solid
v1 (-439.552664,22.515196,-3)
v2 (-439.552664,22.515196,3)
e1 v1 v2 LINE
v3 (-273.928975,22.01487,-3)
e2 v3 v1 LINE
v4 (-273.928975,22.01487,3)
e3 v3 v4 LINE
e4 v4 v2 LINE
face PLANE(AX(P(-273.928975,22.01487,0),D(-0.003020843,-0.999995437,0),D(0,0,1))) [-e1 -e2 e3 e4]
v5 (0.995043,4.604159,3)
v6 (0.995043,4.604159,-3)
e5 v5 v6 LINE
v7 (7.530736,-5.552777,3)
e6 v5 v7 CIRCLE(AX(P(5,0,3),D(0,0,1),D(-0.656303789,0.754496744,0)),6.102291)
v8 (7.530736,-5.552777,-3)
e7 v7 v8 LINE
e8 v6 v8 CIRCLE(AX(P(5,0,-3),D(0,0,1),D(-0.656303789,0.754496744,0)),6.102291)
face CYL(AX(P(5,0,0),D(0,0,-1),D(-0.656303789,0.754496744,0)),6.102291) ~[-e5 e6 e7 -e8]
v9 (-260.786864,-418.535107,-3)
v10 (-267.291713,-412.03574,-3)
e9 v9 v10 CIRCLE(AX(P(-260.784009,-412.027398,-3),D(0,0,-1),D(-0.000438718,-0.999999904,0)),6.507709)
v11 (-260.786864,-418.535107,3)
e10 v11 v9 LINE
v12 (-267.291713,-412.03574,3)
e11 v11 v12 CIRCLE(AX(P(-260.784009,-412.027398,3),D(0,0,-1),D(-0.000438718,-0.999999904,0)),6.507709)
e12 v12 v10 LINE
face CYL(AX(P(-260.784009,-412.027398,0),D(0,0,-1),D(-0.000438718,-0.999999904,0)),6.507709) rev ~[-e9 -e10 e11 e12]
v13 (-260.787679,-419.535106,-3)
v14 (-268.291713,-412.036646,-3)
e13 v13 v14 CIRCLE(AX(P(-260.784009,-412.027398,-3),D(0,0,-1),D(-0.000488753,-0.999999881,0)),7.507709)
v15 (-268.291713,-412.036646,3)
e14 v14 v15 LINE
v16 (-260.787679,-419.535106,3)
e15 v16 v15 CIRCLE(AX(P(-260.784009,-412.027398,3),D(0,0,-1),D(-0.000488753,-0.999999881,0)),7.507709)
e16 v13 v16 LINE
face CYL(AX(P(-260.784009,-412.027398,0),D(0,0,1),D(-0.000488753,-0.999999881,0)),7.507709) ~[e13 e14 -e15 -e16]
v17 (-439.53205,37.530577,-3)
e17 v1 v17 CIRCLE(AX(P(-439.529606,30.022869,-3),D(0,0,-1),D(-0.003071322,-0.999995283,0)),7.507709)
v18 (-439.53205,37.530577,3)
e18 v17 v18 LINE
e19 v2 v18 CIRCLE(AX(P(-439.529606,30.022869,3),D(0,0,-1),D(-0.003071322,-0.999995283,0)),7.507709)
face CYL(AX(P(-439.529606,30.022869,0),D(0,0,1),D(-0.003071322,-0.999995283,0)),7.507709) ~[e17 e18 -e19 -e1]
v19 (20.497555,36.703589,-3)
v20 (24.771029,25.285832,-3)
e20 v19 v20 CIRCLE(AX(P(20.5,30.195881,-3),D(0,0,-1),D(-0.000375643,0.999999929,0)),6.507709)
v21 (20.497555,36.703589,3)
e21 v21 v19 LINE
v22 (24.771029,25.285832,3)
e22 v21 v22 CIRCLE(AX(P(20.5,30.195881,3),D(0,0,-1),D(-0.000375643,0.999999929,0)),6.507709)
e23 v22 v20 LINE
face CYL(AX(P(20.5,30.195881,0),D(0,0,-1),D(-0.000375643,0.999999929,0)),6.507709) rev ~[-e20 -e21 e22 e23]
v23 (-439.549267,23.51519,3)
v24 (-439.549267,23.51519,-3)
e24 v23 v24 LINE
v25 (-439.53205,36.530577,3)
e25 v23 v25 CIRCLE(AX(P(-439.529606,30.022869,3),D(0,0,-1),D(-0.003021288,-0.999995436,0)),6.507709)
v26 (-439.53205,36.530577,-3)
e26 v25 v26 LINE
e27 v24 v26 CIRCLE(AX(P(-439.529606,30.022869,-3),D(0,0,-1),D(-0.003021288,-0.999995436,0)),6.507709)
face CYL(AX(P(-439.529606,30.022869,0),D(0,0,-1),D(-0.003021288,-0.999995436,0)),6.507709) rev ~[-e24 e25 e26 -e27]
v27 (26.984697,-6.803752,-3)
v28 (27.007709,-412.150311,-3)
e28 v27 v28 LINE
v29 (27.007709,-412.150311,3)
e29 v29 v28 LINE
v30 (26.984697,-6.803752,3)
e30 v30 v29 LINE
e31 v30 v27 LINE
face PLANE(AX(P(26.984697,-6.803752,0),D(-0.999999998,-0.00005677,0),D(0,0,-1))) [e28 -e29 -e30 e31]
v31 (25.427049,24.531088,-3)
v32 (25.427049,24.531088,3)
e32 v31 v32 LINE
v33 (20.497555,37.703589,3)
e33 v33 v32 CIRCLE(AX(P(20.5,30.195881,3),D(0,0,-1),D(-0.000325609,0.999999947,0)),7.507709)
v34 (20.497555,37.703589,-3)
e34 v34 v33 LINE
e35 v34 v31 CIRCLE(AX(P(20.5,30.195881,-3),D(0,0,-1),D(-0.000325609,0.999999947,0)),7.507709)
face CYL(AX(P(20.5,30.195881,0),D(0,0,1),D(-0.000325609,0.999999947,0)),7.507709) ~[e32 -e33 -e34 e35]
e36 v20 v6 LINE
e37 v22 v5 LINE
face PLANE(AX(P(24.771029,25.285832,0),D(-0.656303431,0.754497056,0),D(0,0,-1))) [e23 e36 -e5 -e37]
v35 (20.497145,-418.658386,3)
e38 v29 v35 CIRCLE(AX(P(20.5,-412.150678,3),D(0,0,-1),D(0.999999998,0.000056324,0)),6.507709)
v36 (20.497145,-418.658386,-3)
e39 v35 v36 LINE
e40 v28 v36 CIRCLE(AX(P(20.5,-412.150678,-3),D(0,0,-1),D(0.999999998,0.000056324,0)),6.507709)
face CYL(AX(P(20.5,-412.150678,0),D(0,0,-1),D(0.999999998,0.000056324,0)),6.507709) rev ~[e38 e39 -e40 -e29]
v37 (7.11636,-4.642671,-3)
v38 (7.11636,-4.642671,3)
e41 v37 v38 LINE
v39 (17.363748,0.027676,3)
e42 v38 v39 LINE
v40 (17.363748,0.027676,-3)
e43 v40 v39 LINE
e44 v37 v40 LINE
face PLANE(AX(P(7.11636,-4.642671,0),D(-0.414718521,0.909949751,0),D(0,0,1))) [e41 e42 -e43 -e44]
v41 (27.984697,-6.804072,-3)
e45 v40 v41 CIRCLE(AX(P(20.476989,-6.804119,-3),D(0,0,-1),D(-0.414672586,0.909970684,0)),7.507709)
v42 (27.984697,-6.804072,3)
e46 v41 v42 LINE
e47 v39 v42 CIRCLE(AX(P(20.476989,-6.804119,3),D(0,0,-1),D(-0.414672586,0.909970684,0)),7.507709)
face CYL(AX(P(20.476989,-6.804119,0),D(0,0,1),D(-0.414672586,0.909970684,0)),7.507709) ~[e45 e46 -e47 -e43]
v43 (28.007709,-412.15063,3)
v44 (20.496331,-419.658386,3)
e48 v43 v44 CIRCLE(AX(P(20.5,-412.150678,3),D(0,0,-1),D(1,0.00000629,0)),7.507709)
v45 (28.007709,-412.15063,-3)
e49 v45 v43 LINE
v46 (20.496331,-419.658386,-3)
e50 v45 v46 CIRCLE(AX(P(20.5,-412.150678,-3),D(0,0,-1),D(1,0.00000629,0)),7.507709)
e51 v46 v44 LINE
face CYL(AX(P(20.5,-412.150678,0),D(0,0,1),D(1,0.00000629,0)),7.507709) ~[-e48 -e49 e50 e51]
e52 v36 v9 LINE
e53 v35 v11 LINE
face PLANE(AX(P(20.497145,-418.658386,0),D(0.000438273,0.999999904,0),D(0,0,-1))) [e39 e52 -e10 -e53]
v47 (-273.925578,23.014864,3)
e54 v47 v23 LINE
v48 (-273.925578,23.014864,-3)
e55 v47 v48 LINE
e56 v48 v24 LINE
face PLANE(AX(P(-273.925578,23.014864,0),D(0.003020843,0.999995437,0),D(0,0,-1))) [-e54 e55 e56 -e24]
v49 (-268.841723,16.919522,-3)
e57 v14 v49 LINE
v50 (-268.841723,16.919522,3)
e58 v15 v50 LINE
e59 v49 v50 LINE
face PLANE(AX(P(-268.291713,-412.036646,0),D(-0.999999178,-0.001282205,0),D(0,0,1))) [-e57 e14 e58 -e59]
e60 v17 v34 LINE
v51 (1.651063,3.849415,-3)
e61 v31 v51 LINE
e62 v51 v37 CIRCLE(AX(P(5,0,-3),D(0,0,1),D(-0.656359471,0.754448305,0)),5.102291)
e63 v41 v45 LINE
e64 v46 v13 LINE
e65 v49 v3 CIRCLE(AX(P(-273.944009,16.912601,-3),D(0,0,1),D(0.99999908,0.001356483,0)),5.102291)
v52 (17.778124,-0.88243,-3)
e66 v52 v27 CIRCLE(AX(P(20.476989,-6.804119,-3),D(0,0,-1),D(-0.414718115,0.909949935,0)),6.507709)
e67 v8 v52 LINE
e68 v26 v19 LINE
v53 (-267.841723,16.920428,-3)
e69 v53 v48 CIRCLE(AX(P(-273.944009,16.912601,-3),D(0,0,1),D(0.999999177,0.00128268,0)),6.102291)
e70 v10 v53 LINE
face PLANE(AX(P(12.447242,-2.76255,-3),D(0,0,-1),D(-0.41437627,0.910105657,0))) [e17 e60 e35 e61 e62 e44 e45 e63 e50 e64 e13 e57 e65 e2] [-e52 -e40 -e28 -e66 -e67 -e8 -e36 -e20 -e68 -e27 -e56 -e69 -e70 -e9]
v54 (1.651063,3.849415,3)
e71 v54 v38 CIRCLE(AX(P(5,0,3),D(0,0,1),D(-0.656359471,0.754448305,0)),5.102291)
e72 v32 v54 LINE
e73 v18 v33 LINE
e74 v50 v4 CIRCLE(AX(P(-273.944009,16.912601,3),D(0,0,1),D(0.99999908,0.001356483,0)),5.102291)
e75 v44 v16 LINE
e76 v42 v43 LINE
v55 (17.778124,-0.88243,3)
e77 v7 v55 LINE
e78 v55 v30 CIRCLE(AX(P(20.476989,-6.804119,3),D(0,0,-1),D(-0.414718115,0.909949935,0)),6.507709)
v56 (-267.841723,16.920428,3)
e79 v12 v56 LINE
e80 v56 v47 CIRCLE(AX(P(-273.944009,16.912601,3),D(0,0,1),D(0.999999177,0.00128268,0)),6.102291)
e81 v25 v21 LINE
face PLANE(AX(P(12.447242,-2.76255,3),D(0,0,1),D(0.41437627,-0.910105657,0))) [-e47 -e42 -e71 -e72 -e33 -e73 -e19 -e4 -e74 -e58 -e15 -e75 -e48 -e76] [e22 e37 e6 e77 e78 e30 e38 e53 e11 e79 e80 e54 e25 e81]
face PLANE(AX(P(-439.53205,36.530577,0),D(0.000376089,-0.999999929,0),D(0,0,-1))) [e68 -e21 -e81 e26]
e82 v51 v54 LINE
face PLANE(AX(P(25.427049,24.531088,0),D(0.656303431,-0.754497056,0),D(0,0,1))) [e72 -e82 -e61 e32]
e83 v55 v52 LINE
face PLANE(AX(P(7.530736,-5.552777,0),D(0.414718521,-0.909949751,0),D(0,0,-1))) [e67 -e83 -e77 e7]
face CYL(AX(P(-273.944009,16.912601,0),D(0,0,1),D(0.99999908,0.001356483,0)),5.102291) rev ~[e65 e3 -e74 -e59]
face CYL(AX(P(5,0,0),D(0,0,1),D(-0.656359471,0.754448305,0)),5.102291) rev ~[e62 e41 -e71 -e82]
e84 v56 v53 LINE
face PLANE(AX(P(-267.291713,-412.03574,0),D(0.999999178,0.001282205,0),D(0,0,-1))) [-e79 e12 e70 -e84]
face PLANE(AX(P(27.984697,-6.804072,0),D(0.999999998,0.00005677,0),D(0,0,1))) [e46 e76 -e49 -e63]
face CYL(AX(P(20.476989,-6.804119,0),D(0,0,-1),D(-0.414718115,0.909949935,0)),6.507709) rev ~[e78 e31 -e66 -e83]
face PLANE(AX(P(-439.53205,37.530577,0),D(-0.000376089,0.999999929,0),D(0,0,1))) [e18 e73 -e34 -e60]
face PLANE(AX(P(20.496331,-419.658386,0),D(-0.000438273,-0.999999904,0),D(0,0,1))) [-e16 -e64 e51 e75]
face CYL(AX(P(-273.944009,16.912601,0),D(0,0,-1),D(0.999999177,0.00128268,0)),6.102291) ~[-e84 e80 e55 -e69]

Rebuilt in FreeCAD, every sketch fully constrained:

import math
import FreeCAD as App
import Part
import Sketcher

V = App.Vector
Q = App.Units.Quantity

doc = App.newDocument("Part")
body = doc.addObject("PartDesign::Body", "Body")

# Sketch on YZ plane
sketch1 = body.newObject("Sketcher::SketchObject", "Sketch")
sketch1.AttachmentSupport = (doc.getObject("YZ_Plane"), [""])
sketch1.MapMode = "FlatFace"
sketch1.addGeometry([
    Part.LineSegment(V(37.7, 3, 0), V(36.7, 3, 0)),
    Part.LineSegment(V(36.7, 3, 0), V(36.7, -3, 0)),
    Part.LineSegment(V(36.7, -3, 0), V(37.7, -3, 0)),
    Part.LineSegment(V(37.7, -3, 0), V(37.7, 3, 0)),
], False)
sketch1.addConstraint([
    Sketcher.Constraint("Coincident", 0, 2, 1, 1),
    Sketcher.Constraint("Coincident", 1, 2, 2, 1),
    Sketcher.Constraint("Coincident", 2, 2, 3, 1),
    Sketcher.Constraint("Coincident", 3, 2, 0, 1),
    Sketcher.Constraint("Horizontal", 0),
    Sketcher.Constraint("Vertical", 1),
    Sketcher.Constraint("Horizontal", 2),
    Sketcher.Constraint("Vertical", 3),
    Sketcher.Constraint("DistanceX", 0, 2, 0, 1, Q("1 mm")),
    Sketcher.Constraint("DistanceY", 1, 2, 1, 1, Q("6 mm")),
    Sketcher.Constraint("DistanceY", -1, 1, 0, 2, Q("3 mm")),
    Sketcher.Constraint("DistanceX", -1, 1, 0, 2, Q("36.69588 mm")),
])

# Sketch on XY plane
sketch2 = body.newObject("Sketcher::SketchObject", "Sketch001")
sketch2.AttachmentSupport = (doc.getObject("XY_Plane"), [""])
sketch2.MapMode = "FlatFace"
sketch2.addGeometry([
    Part.LineSegment(V(8, -6, 0), V(18, -1, 0)),  # 0
    Part.ArcOfCircle(Part.Circle(V(20, -7, 0), V(0, 0, 1), 6), math.radians(0), math.radians(115)),  # 1
    Part.LineSegment(V(27, -7, 0), V(27, -412, 0)),  # 2
    Part.ArcOfCircle(Part.Circle(V(21, -412, 0), V(0, 0, 1), 6), math.radians(-90), math.radians(0)),  # 3
    Part.LineSegment(V(20, -419, 0), V(-261, -419, 0)),  # 4
    Part.ArcOfCircle(Part.Circle(V(-261, -412, 0), V(0, 0, 1), 6), math.radians(-180), math.radians(-90)),  # 5
    Part.LineSegment(V(-267, -412, 0), V(-268, 17, 0)),  # 6
    Part.ArcOfCircle(Part.Circle(V(-274, 17, 0), V(0, 0, 1), 6), math.radians(0), math.radians(90)),  # 7
    Part.LineSegment(V(-274, 23, 0), V(-440, 24, 0)),  # 8
    Part.ArcOfCircle(Part.Circle(V(-440, 30, 0), V(0, 0, 1), 6), math.radians(90), math.radians(270)),  # 9
    Part.LineSegment(V(-440, 37, 0), V(20, 37, 0)),  # 10
    Part.ArcOfCircle(Part.Circle(V(20, 30, 0), V(0, 0, 1), 6), math.radians(-49), math.radians(90)),  # 11
    Part.LineSegment(V(25, 25, 0), V(1, 5, 0)),  # 12
    Part.ArcOfCircle(Part.Circle(V(5, 0, 0), V(0, 0, 1), 6), math.radians(131), math.radians(295)),  # 13
], False)
sketch2.addConstraint([
    Sketcher.Constraint("Tangent", 0, 2, 1, 2),
    Sketcher.Constraint("Tangent", 1, 1, 2, 1),
    Sketcher.Constraint("Tangent", 2, 2, 3, 2),
    Sketcher.Constraint("Tangent", 3, 1, 4, 1),
    Sketcher.Constraint("Tangent", 4, 2, 5, 2),
    Sketcher.Constraint("Tangent", 5, 1, 6, 1),
    Sketcher.Constraint("Tangent", 6, 2, 7, 1),
    Sketcher.Constraint("Tangent", 7, 2, 8, 1),
    Sketcher.Constraint("Tangent", 8, 2, 9, 2),
    Sketcher.Constraint("Tangent", 9, 1, 10, 1),
    Sketcher.Constraint("Tangent", 10, 2, 11, 2),
    Sketcher.Constraint("Tangent", 11, 1, 12, 1),
    Sketcher.Constraint("Tangent", 12, 2, 13, 1),
    Sketcher.Constraint("Tangent", 13, 2, 0, 1),
    Sketcher.Constraint("Equal", 1, 3),
    Sketcher.Constraint("Equal", 3, 5),
    Sketcher.Constraint("Equal", 5, 9),
    Sketcher.Constraint("Equal", 9, 11),
    Sketcher.Constraint("Equal", 7, 13),
    Sketcher.Constraint("PointOnObject", 13, 3, -1),
    Sketcher.Constraint("Vertical", 3, 3, 11, 3),
    Sketcher.Constraint("Radius", 1, Q("6.5 mm")),
    Sketcher.Constraint("Radius", 7, Q("6.11 mm")),
    Sketcher.Constraint("DistanceX", -1, 1, 13, 3, Q("5 mm")),
    Sketcher.Constraint("DistanceX", -1, 1, 2, 2, Q("27 mm")),
    Sketcher.Constraint("DistanceY", 1, 3, 11, 3, Q("37 mm")),
    Sketcher.Constraint("DistanceX", 7, 3, 5, 3, Q("13.16 mm")),
    Sketcher.Constraint("DistanceY", 5, 3, 7, 3, Q("428.939999 mm")),
    Sketcher.Constraint("DistanceY", 5, 3, -1, 1, Q("412.027398 mm")),
    Sketcher.Constraint("DistanceY", -1, 1, 8, 2, Q("23.522899 mm")),
    Sketcher.Constraint("DistanceX", 9, 1, 7, 2, Q("165.606498 mm")),
    Sketcher.Constraint("DistanceY", 1, 1, 11, 1, Q("32.0954 mm")),
    Sketcher.Constraint("Distance", 2, Q("405.346559 mm")),
    Sketcher.Constraint("Distance", 10, Q("460.029638 mm")),
    Sketcher.Constraint("DistanceX", -1, 1, 1, 3, Q("20.476989 mm")),
])
doc.recompute()

additivepipe = body.newObject("PartDesign::AdditivePipe", "AdditivePipe")
additivepipe.Profile = sketch1
additivepipe.Spine = (sketch2, ["Edge1", "Edge2", "Edge3", "Edge4", "Edge5", "Edge6", "Edge7", "Edge8", "Edge9", "Edge10", "Edge11", "Edge12", "Edge13", "Edge14"])

doc.recompute()
